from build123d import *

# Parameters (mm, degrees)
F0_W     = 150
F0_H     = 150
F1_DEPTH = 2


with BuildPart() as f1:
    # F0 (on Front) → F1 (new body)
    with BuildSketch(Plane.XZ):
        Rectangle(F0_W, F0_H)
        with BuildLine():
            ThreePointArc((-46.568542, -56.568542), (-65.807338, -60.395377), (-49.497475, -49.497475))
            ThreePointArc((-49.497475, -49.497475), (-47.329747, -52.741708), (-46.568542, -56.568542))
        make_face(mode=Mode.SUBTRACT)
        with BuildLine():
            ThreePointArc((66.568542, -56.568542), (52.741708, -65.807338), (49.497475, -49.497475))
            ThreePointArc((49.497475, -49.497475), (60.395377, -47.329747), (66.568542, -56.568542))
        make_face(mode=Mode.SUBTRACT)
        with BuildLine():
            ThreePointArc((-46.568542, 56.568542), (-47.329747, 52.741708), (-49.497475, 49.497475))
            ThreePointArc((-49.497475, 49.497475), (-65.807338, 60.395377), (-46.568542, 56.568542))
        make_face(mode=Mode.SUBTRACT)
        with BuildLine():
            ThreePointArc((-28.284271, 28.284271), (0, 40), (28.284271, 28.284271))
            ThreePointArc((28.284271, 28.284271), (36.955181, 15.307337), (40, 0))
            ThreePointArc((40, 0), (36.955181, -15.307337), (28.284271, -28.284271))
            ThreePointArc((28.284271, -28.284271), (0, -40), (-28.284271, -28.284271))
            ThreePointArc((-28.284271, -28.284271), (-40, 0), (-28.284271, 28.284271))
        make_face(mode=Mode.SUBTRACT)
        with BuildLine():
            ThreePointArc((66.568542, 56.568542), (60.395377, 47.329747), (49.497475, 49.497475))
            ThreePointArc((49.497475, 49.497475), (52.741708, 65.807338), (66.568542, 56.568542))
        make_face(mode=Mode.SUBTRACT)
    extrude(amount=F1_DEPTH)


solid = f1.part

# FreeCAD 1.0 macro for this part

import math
import FreeCAD as App
import Part
import Sketcher
from FreeCAD import Vector


def add_polygon(sketch, points):
    """Adds a closed chain of lines whose ends are joined by coincident constraints."""
    first, n = sketch.GeometryCount, len(points)
    for a, b in zip(points, points[1:] + points[:1]):
        sketch.addGeometry(Part.LineSegment(App.Vector(*a, 0), App.Vector(*b, 0)), False)
    for i in range(n):
        sketch.addConstraint(Sketcher.Constraint("Coincident", first + i, 2, first + (i + 1) % n, 1))

doc = App.newDocument("Part")
params = doc.addObject("Spreadsheet::Sheet", "Params")
for row, (alias, value) in enumerate([
    ("sketch1_radius", "10 mm"),
    ("sketch1_radius2", "39.999999 mm"),
    ("sketch1_width", "150 mm"),
    ("pad1_length", "2 mm"),
], start=1):
    params.set(f"A{row}", alias)
    params.set(f"B{row}", "=" + value)
    params.setAlias(f"B{row}", alias)

body = doc.addObject("PartDesign::Body", "Body")

sketch1 = doc.addObject("Sketcher::SketchObject", "Sketch")
body.addObject(sketch1)
sketch1.AttachmentSupport = (doc.XZ_Plane, [""])
sketch1.MapMode = "FlatFace"
add_polygon(sketch1, [(-75, 75), (-75, -75), (75, -75), (75, 75)])
sketch1.addGeometry(Part.ArcOfCircle(Part.Circle(Vector(-57, -57, 0), Vector(0, 0, 1), 10), math.radians(0), math.radians(45)), False)
sketch1.addGeometry(Part.ArcOfCircle(Part.Circle(Vector(-57, -57, 0), Vector(0, 0, 1), 10), math.radians(45), math.radians(360)), False)
sketch1.addGeometry(Part.ArcOfCircle(Part.Circle(Vector(57, -57, 0), Vector(0, 0, 1), 10), math.radians(0), math.radians(135)), False)
sketch1.addGeometry(Part.ArcOfCircle(Part.Circle(Vector(57, -57, 0), Vector(0, 0, 1), 10), math.radians(135), math.radians(360)), False)
sketch1.addGeometry(Part.ArcOfCircle(Part.Circle(Vector(-57, 57, 0), Vector(0, 0, 1), 10), math.radians(0), math.radians(315)), False)
sketch1.addGeometry(Part.ArcOfCircle(Part.Circle(Vector(-57, 57, 0), Vector(0, 0, 1), 10), math.radians(-45), math.radians(0)), False)
sketch1.addGeometry(Part.ArcOfCircle(Part.Circle(Vector(0, 0, 0), Vector(0, 0, 1), 40), math.radians(135), math.radians(225)), False)
sketch1.addGeometry(Part.ArcOfCircle(Part.Circle(Vector(0, 0, 0), Vector(0, 0, 1), 40), math.radians(45), math.radians(135)), False)
sketch1.addGeometry(Part.ArcOfCircle(Part.Circle(Vector(0, 0, 0), Vector(0, 0, 1), 40), math.radians(0), math.radians(45)), False)
sketch1.addGeometry(Part.ArcOfCircle(Part.Circle(Vector(0, 0, 0), Vector(0, 0, 1), 40), math.radians(-45), math.radians(0)), False)
sketch1.addGeometry(Part.ArcOfCircle(Part.Circle(Vector(0, 0, 0), Vector(0, 0, 1), 40), math.radians(-135), math.radians(-45)), False)
sketch1.addGeometry(Part.ArcOfCircle(Part.Circle(Vector(57, 57, 0), Vector(0, 0, 1), 10), math.radians(0), math.radians(225)), False)
sketch1.addGeometry(Part.ArcOfCircle(Part.Circle(Vector(57, 57, 0), Vector(0, 0, 1), 10), math.radians(-135), math.radians(0)), False)
sketch1.addConstraint([
    Sketcher.Constraint("Tangent", 4, 1, 5, 2),
    Sketcher.Constraint("Coincident", 5, 1, 4, 2),
    Sketcher.Constraint("Tangent", 6, 1, 7, 2),
    Sketcher.Constraint("Coincident", 7, 1, 6, 2),
    Sketcher.Constraint("Tangent", 8, 1, 9, 2),
    Sketcher.Constraint("Coincident", 9, 1, 8, 2),
    Sketcher.Constraint("Tangent", 10, 1, 11, 2),
    Sketcher.Constraint("Tangent", 11, 1, 12, 2),
    Sketcher.Constraint("Tangent", 12, 1, 13, 2),
    Sketcher.Constraint("Tangent", 13, 1, 14, 2),
    Sketcher.Constraint("Tangent", 14, 1, 10, 2),
    Sketcher.Constraint("Tangent", 15, 1, 16, 2),
    Sketcher.Constraint("Coincident", 16, 1, 15, 2),
    Sketcher.Constraint("Vertical", 0),
    Sketcher.Constraint("Horizontal", 1),
    Sketcher.Constraint("Vertical", 2),
    Sketcher.Constraint("Horizontal", 3),
    Sketcher.Constraint("Coincident", 10, 3, -1, 1),
    Sketcher.Constraint("Coincident", 12, 3, -1, 1),
    Sketcher.Constraint("Equal", 5, 6),
    Sketcher.Constraint("Equal", 7, 8),
    Sketcher.Constraint("Equal", 8, 15),
    Sketcher.Constraint("Symmetric", 6, 3, 8, 3, -1, 1),
    Sketcher.Constraint("Symmetric", 4, 3, 15, 3, -1, 1),
    Sketcher.Constraint("Symmetric", 0, 2, 2, 2, -1, 1),
    Sketcher.Constraint("Symmetric", 4, 3, 6, 3, -2),
    Sketcher.Constraint("PointOnObject", 12, 1, -1),
    Sketcher.Constraint("Horizontal", 7, 3, 4, 1),
    Sketcher.Constraint("Horizontal", 4, 1, 6, 1),
    Sketcher.Constraint("Horizontal", 5, 1, 7, 1),
    Sketcher.Constraint("Horizontal", 16, 3, 8, 1),
    Sketcher.Constraint("Horizontal", 10, 1, 11, 1),
    Sketcher.Constraint("Horizontal", 13, 1, 14, 1),
    Sketcher.Constraint("Horizontal", 8, 1, 15, 1),
    Sketcher.Constraint("Horizontal", 9, 1, 16, 1),
    Sketcher.Constraint("Vertical", 5, 1, 9, 1),
    Sketcher.Constraint("Vertical", 11, 1, 13, 1),
    Sketcher.Constraint("Equal", 3, 0),
    Sketcher.Constraint("Radius", 5, 10.0),
    Sketcher.Constraint("Radius", 10, 39.999999),
    Sketcher.Constraint("DistanceX", 1, 1, 1, 2, 150.0),
    Sketcher.Constraint("DistanceX", 4, 3, -1, 1, 56.56854),
    Sketcher.Constraint("DistanceY", 6, 3, -1, 1, 56.568541),
    Sketcher.Constraint("DistanceX", 10, 1, -1, 1, 28.284271),
    Sketcher.Constraint("DistanceY", 5, 3, 5, 1, 7.071069),
])
sketch1.setExpression("Constraints[42]", "Params.sketch1_radius")
sketch1.setExpression("Constraints[43]", "Params.sketch1_radius2")
sketch1.setExpression("Constraints[44]", "Params.sketch1_width")
pad1 = doc.addObject("PartDesign::Pad", "Pad")
body.addObject(pad1)
pad1.Profile = sketch1
pad1.setExpression("Length", "Params.pad1_length")

doc.recompute()
